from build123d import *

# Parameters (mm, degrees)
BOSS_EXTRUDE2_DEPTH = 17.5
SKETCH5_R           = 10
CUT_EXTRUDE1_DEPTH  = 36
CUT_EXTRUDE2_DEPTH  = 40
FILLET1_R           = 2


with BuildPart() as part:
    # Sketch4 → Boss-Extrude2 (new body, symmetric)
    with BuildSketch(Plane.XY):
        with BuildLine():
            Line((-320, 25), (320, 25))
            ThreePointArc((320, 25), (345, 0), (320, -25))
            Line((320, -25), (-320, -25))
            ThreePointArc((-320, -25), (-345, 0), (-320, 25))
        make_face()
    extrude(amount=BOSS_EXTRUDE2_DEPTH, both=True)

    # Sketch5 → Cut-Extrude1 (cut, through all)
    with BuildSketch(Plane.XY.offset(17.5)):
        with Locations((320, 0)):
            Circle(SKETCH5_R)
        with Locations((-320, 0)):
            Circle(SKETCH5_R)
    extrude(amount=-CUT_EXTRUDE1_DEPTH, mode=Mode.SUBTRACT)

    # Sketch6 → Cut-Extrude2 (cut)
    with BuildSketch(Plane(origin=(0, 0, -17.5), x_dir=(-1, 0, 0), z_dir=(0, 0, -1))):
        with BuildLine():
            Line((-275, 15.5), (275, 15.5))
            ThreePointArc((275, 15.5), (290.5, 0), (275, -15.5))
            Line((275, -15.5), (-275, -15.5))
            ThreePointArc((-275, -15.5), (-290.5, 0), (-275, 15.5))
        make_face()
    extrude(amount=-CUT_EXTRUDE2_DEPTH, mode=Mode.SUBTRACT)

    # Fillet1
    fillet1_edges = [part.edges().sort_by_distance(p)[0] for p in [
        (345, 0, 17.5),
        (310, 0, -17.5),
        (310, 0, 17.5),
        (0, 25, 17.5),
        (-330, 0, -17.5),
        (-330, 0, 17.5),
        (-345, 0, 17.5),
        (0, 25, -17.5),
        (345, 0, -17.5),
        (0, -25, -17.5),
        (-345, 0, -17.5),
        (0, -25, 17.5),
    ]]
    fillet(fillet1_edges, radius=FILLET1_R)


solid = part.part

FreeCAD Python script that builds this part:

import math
import FreeCAD as App
import Part
import Sketcher


def edges_at(feature, points):
    """Names of the edges that pass closest to the given points."""
    edges = feature.Shape.Edges
    near = lambda p: min(range(len(edges)), key=lambda i: edges[i].distToShape(Part.Vertex(*p))[0])
    return sorted({f"Edge{near(p) + 1}" for p in points})

doc = App.newDocument("Part")
body = doc.addObject("PartDesign::Body", "Body")

sketch1 = body.newObject("Sketcher::SketchObject", "Sketch")
sketch1.AttachmentSupport = (doc.getObject("XY_Plane"), [""])
sketch1.MapMode = "FlatFace"
sketch1.addGeometry([
    Part.LineSegment(App.Vector(320, 25, 0), App.Vector(-320, 25, 0)),
    Part.ArcOfCircle(Part.Circle(App.Vector(-320, 0, 0), App.Vector(0, 0, 1), 25), math.radians(90), math.radians(270)),
    Part.LineSegment(App.Vector(-320, -25, 0), App.Vector(320, -25, 0)),
    Part.ArcOfCircle(Part.Circle(App.Vector(320, 0, 0), App.Vector(0, 0, 1), 25), math.radians(-90), math.radians(90)),
], False)
sketch1.addConstraint([
    Sketcher.Constraint("Tangent", 0, 2, 1, 1),
    Sketcher.Constraint("Tangent", 1, 2, 2, 1),
    Sketcher.Constraint("Tangent", 2, 2, 3, 1),
    Sketcher.Constraint("Tangent", 3, 2, 0, 1),
    Sketcher.Constraint("Horizontal", 0),
    Sketcher.Constraint("Horizontal", 2),
    Sketcher.Constraint("Symmetric", 1, 3, 3, 3, -1, 1),
    Sketcher.Constraint("Radius", 1, 25.0),
    Sketcher.Constraint("DistanceX", 0, 2, 0, 1, 640.0),
])
pad1 = body.newObject("PartDesign::Pad", "Pad")
pad1.Profile = sketch1
pad1.Length = 35
pad1.Midplane = True

sketch2 = body.newObject("Sketcher::SketchObject", "Sketch001")
sketch2.AttachmentSupport = (doc.getObject("XY_Plane"), [""])
sketch2.MapMode = "FlatFace"
sketch2.AttachmentOffset = App.Placement(App.Vector(0, 0, 17.5), App.Rotation())
sketch2.addGeometry([
    Part.Circle(App.Vector(320, 0, 0), App.Vector(0, 0, 1), 10),
    Part.Circle(App.Vector(-320, 0, 0), App.Vector(0, 0, 1), 10),
], False)
sketch2.addConstraint([
    Sketcher.Constraint("Equal", 0, 1),
    Sketcher.Constraint("Symmetric", 0, 3, 1, 3, -1, 1),
    Sketcher.Constraint("PointOnObject", 0, 3, -1),
    Sketcher.Constraint("Diameter", 0, 20.0),
    Sketcher.Constraint("DistanceX", -1, 1, 0, 3, 320.0),
])
pocket1 = body.newObject("PartDesign::Pocket", "Pocket")
pocket1.Profile = sketch2
pocket1.Type = "ThroughAll"

sketch3 = body.newObject("Sketcher::SketchObject", "Sketch002")
sketch3.AttachmentSupport = (doc.getObject("XY_Plane"), [""])
sketch3.MapMode = "FlatFace"
sketch3.AttachmentOffset = App.Placement(App.Vector(0, 0, -17.5), App.Rotation())
sketch3.addGeometry([
    Part.LineSegment(App.Vector(-275, 16, 0), App.Vector(275, 16, 0)),
    Part.ArcOfCircle(Part.Circle(App.Vector(275, 0, 0), App.Vector(0, 0, 1), 16), math.radians(-90), math.radians(90)),
    Part.LineSegment(App.Vector(275, -16, 0), App.Vector(-275, -16, 0)),
    Part.ArcOfCircle(Part.Circle(App.Vector(-275, 0, 0), App.Vector(0, 0, 1), 16), math.radians(90), math.radians(270)),
], False)
sketch3.addConstraint([
    Sketcher.Constraint("Tangent", 0, 2, 1, 2),
    Sketcher.Constraint("Tangent", 1, 1, 2, 1),
    Sketcher.Constraint("Tangent", 2, 2, 3, 2),
    Sketcher.Constraint("Tangent", 3, 1, 0, 1),
    Sketcher.Constraint("Horizontal", 0),
    Sketcher.Constraint("Horizontal", 2),
    Sketcher.Constraint("Symmetric", 1, 3, 3, 3, -1, 1),
    Sketcher.Constraint("Radius", 1, 15.5),
    Sketcher.Constraint("DistanceX", 0, 1, 0, 2, 550.0),
])
pocket2 = body.newObject("PartDesign::Pocket", "Pocket001")
pocket2.Profile = sketch3
pocket2.Length = 40
pocket2.Reversed = True
doc.recompute()

fillet = body.newObject("PartDesign::Fillet", "Fillet")
fillet.Base = (pocket2, edges_at(pocket2, [
    (345, 0, 17.5),
    (310, 0, -17.5),
    (310, 0, 17.5),
    (0, 25, 17.5),
    (-330, 0, -17.5),
    (-330, 0, 17.5),
    (-345, 0, 17.5),
    (0, 25, -17.5),
    (345, 0, -17.5),
    (0, -25, -17.5),
    (-345, 0, -17.5),
    (0, -25, 17.5),
]))
fillet.Radius = 2

doc.recompute()
